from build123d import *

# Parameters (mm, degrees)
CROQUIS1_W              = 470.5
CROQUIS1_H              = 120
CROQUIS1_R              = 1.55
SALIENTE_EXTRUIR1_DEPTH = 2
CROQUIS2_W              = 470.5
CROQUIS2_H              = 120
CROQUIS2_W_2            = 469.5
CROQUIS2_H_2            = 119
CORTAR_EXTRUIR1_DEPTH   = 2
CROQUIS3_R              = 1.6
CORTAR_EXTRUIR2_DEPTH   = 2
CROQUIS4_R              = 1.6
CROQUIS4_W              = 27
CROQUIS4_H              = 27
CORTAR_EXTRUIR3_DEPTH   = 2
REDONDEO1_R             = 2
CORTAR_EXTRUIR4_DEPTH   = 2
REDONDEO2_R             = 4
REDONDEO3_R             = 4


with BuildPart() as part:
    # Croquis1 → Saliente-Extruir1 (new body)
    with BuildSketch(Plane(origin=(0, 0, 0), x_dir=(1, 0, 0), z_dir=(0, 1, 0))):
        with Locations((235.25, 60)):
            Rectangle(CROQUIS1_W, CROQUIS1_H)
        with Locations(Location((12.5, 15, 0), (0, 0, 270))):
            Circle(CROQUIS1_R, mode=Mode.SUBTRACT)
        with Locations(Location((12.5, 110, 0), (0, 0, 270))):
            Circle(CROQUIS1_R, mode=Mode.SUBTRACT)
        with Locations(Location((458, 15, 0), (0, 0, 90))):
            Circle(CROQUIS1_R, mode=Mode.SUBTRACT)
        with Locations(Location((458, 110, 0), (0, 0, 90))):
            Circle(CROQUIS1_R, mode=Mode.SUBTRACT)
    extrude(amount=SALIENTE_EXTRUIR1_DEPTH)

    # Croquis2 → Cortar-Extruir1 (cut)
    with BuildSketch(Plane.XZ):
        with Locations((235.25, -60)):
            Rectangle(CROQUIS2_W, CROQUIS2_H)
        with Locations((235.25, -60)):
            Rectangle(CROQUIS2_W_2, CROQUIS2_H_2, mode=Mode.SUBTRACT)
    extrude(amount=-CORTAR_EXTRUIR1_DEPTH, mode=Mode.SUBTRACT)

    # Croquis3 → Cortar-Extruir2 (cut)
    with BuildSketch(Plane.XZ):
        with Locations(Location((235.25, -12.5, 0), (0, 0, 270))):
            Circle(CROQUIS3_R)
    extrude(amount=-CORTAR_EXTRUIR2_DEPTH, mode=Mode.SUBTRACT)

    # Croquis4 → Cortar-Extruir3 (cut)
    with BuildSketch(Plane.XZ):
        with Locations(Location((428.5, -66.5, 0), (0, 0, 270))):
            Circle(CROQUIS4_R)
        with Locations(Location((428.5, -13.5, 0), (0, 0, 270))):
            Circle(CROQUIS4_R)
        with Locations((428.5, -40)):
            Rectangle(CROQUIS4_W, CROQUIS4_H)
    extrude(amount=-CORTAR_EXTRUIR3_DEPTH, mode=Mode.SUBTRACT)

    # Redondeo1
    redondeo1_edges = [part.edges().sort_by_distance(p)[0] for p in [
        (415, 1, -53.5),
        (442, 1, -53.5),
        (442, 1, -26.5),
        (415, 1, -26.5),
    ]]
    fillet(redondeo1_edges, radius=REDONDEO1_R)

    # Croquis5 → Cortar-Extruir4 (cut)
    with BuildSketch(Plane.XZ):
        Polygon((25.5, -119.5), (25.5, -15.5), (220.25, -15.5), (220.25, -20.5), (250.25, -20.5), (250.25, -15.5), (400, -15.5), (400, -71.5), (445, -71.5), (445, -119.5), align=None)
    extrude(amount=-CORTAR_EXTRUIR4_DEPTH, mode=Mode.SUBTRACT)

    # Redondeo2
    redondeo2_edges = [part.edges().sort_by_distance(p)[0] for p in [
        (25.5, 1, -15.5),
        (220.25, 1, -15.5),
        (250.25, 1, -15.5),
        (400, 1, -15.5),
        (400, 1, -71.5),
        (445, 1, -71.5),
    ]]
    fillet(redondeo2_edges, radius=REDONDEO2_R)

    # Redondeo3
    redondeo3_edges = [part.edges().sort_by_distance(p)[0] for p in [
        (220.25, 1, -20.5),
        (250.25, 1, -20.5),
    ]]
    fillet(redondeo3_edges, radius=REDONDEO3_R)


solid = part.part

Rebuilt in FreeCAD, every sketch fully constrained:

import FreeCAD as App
import Part
import Sketcher
from FreeCAD import Vector
Q = App.Units.Quantity


def edges_at(feature, points):
    """Names of the edges that pass closest to the given points."""
    edges = feature.Shape.Edges
    near = lambda p: min(range(len(edges)), key=lambda i: edges[i].distToShape(Part.Vertex(*p))[0])
    return sorted({f"Edge{near(p) + 1}" for p in points})


def add_polygon(sketch, points):
    """Adds a closed chain of lines whose ends are joined by coincident constraints."""
    first, n = sketch.GeometryCount, len(points)
    for a, b in zip(points, points[1:] + points[:1]):
        sketch.addGeometry(Part.LineSegment(App.Vector(*a, 0), App.Vector(*b, 0)), False)
    for i in range(n):
        sketch.addConstraint(Sketcher.Constraint("Coincident", first + i, 2, first + (i + 1) % n, 1))

doc = App.newDocument("Part")
body = doc.addObject("PartDesign::Body", "Body")

# Sketch on XZ plane
sketch1 = body.newObject("Sketcher::SketchObject", "Sketch")
sketch1.AttachmentSupport = (doc.getObject("XZ_Plane"), [""])
sketch1.MapMode = "FlatFace"
add_polygon(sketch1, [(0, -120), (0, 0), (470.5, 0), (470.5, -120)])  # lines 0-3
sketch1.addGeometry(Part.Circle(Vector(12.5, -15, 0), Vector(0, 0, 1), 1.6), False)  # 4
sketch1.addGeometry(Part.Circle(Vector(458, -15, 0), Vector(0, 0, 1), 1.6), False)  # 5
sketch1.addGeometry(Part.Circle(Vector(12.5, -110, 0), Vector(0, 0, 1), 1.6), False)  # 6
sketch1.addGeometry(Part.Circle(Vector(458, -110, 0), Vector(0, 0, 1), 1.6), False)  # 7
sketch1.addConstraint([
    Sketcher.Constraint("Vertical", 0),
    Sketcher.Constraint("Horizontal", 1),
    Sketcher.Constraint("Vertical", 2),
    Sketcher.Constraint("Horizontal", 3),
    Sketcher.Constraint("Coincident", 0, 2, -1, 1),
    Sketcher.Constraint("Equal", 4, 5),
    Sketcher.Constraint("Equal", 5, 6),
    Sketcher.Constraint("Equal", 6, 7),
    Sketcher.Constraint("Horizontal", 4, 3, 5, 3),
    Sketcher.Constraint("Horizontal", 6, 3, 7, 3),
    Sketcher.Constraint("Vertical", 4, 3, 6, 3),
    Sketcher.Constraint("Vertical", 5, 3, 7, 3),
    Sketcher.Constraint("Diameter", 4, Q("3.1 mm")),
    Sketcher.Constraint("DistanceY", 0, 1, 0, 2, Q("120 mm")),
    Sketcher.Constraint("DistanceX", 1, 1, 1, 2, Q("470.5 mm")),
    Sketcher.Constraint("DistanceY", 4, 3, -1, 1, Q("15 mm")),
    Sketcher.Constraint("DistanceX", -1, 1, 5, 3, Q("458 mm")),
    Sketcher.Constraint("DistanceY", 6, 3, -1, 1, Q("110 mm")),
    Sketcher.Constraint("DistanceX", 4, 3, 1, 2, Q("458 mm")),
])
pad1 = body.newObject("PartDesign::Pad", "Pad")
pad1.Profile = sketch1
pad1.Length = 2
pad1.Reversed = True

# Sketch on XZ plane
sketch2 = body.newObject("Sketcher::SketchObject", "Sketch001")
sketch2.AttachmentSupport = (doc.getObject("XZ_Plane"), [""])
sketch2.MapMode = "FlatFace"
add_polygon(sketch2, [(0, 0), (0, -120), (470, -120), (470, 0)])  # lines 0-3
add_polygon(sketch2, [(470, -120), (0, -120), (0, 0), (470, 0)])  # lines 4-7
sketch2.addConstraint([
    Sketcher.Constraint("Vertical", 0),
    Sketcher.Constraint("Horizontal", 1),
    Sketcher.Constraint("Vertical", 2),
    Sketcher.Constraint("Horizontal", 3),
    Sketcher.Constraint("Horizontal", 4),
    Sketcher.Constraint("Vertical", 5),
    Sketcher.Constraint("Horizontal", 6),
    Sketcher.Constraint("Vertical", 7),
    Sketcher.Constraint("Coincident", 3, 2, -1, 1),
    Sketcher.Constraint("DistanceY", 0, 2, 0, 1, Q("120 mm")),
    Sketcher.Constraint("DistanceY", 5, 1, 5, 2, Q("119 mm")),
    Sketcher.Constraint("DistanceX", 1, 1, 1, 2, Q("470.5 mm")),
    Sketcher.Constraint("DistanceX", 4, 2, 4, 1, Q("469.5 mm")),
    Sketcher.Constraint("DistanceX", -1, 1, 6, 2, Q("470 mm")),
    Sketcher.Constraint("DistanceY", 4, 2, -1, 1, Q("119.5 mm")),
])
pocket1 = body.newObject("PartDesign::Pocket", "Pocket")
pocket1.Profile = sketch2
pocket1.Length = 2

# Sketch on XZ plane
sketch3 = body.newObject("Sketcher::SketchObject", "Sketch002")
sketch3.AttachmentSupport = (doc.getObject("XZ_Plane"), [""])
sketch3.MapMode = "FlatFace"
sketch3.addGeometry(Part.Circle(Vector(235.2, -12.5, 0), Vector(0, 0, 1), 1.6), False)
sketch3.addConstraint([
    Sketcher.Constraint("Diameter", 0, Q("3.2 mm")),
    Sketcher.Constraint("DistanceY", 0, 3, -1, 1, Q("12.5 mm")),
    Sketcher.Constraint("DistanceX", -1, 1, 0, 3, Q("235.25 mm")),
])
pocket2 = body.newObject("PartDesign::Pocket", "Pocket001")
pocket2.Profile = sketch3
pocket2.Length = 2

# Sketch on XZ plane
sketch4 = body.newObject("Sketcher::SketchObject", "Sketch003")
sketch4.AttachmentSupport = (doc.getObject("XZ_Plane"), [""])
sketch4.MapMode = "FlatFace"
sketch4.addGeometry(Part.Circle(Vector(428.5, -66.5, 0), Vector(0, 0, 1), 1.6), False)  # 0
sketch4.addGeometry(Part.Circle(Vector(428.5, -13.5, 0), Vector(0, 0, 1), 1.6), False)  # 1
add_polygon(sketch4, [(415, -26.5), (415, -53.5), (442, -53.5), (442, -26.5)])  # lines 2-5
sketch4.addConstraint([
    Sketcher.Constraint("Vertical", 2),
    Sketcher.Constraint("Horizontal", 3),
    Sketcher.Constraint("Vertical", 4),
    Sketcher.Constraint("Horizontal", 5),
    Sketcher.Constraint("Equal", 0, 1),
    Sketcher.Constraint("Vertical", 0, 3, 1, 3),
    Sketcher.Constraint("Equal", 5, 2),
    Sketcher.Constraint("Diameter", 0, Q("3.2 mm")),
    Sketcher.Constraint("DistanceX", 3, 1, 3, 2, Q("27 mm")),
    Sketcher.Constraint("DistanceX", -1, 1, 2, 2, Q("415 mm")),
    Sketcher.Constraint("DistanceY", 0, 3, 1, 3, Q("53 mm")),
    Sketcher.Constraint("DistanceY", 0, 3, 2, 2, Q("13 mm")),
    Sketcher.Constraint("DistanceX", -1, 1, 0, 3, Q("428.5 mm")),
    Sketcher.Constraint("DistanceY", 0, 3, -1, 1, Q("66.5 mm")),
])
pocket3 = body.newObject("PartDesign::Pocket", "Pocket002")
pocket3.Profile = sketch4
pocket3.Length = 2
doc.recompute()

fillet = body.newObject("PartDesign::Fillet", "Fillet")
fillet.Base = (pocket3, edges_at(pocket3, [
    (415, 1, -53.5),
    (442, 1, -53.5),
    (442, 1, -26.5),
    (415, 1, -26.5),
]))
fillet.Radius = 2

# Sketch on XZ plane
sketch5 = body.newObject("Sketcher::SketchObject", "Sketch004")
sketch5.AttachmentSupport = (doc.getObject("XZ_Plane"), [""])
sketch5.MapMode = "FlatFace"
add_polygon(sketch5, [(26, -16), (26, -120), (445, -120), (445, -72), (400, -72), (400, -16), (250, -16), (250, -20), (220, -20), (220, -16)])  # lines 0-9
sketch5.addConstraint([
    Sketcher.Constraint("Vertical", 0),
    Sketcher.Constraint("Horizontal", 1),
    Sketcher.Constraint("Vertical", 2),
    Sketcher.Constraint("Horizontal", 3),
    Sketcher.Constraint("Vertical", 4),
    Sketcher.Constraint("Horizontal", 5),
    Sketcher.Constraint("Vertical", 6),
    Sketcher.Constraint("Horizontal", 7),
    Sketcher.Constraint("Vertical", 8),
    Sketcher.Constraint("Horizontal", 9),
    Sketcher.Constraint("Horizontal", 5, 2, 8, 2),
    Sketcher.Constraint("DistanceX", 3, 2, 3, 1, Q("45 mm")),
    Sketcher.Constraint("DistanceX", 7, 2, 7, 1, Q("30 mm")),
    Sketcher.Constraint("DistanceY", 0, 2, 0, 1, Q("104 mm")),
    Sketcher.Constraint("DistanceY", 2, 1, 2, 2, Q("48 mm")),
    Sketcher.Constraint("DistanceY", 6, 2, 6, 1, Q("5 mm")),
    Sketcher.Constraint("DistanceX", 1, 1, 1, 2, Q("419.5 mm")),
    Sketcher.Constraint("DistanceX", -1, 1, 1, 2, Q("445 mm")),
    Sketcher.Constraint("DistanceX", 5, 2, 5, 1, Q("149.75 mm")),
    Sketcher.Constraint("DistanceY", 0, 2, -1, 1, Q("119.5 mm")),
])
pocket4 = body.newObject("PartDesign::Pocket", "Pocket003")
pocket4.Profile = sketch5
pocket4.Length = 2
doc.recompute()

fillet2 = body.newObject("PartDesign::Fillet", "Fillet001")
fillet2.Base = (pocket4, edges_at(pocket4, [
    (25.5, 1, -15.5),
    (220.25, 1, -15.5),
    (250.25, 1, -15.5),
    (400, 1, -15.5),
    (400, 1, -71.5),
    (445, 1, -71.5),
]))
fillet2.Radius = 4
doc.recompute()

fillet3 = body.newObject("PartDesign::Fillet", "Fillet002")
fillet3.Base = (fillet2, edges_at(fillet2, [(220.25, 1, -20.5), (250.25, 1, -20.5)]))
fillet3.Radius = 4

doc.recompute()
